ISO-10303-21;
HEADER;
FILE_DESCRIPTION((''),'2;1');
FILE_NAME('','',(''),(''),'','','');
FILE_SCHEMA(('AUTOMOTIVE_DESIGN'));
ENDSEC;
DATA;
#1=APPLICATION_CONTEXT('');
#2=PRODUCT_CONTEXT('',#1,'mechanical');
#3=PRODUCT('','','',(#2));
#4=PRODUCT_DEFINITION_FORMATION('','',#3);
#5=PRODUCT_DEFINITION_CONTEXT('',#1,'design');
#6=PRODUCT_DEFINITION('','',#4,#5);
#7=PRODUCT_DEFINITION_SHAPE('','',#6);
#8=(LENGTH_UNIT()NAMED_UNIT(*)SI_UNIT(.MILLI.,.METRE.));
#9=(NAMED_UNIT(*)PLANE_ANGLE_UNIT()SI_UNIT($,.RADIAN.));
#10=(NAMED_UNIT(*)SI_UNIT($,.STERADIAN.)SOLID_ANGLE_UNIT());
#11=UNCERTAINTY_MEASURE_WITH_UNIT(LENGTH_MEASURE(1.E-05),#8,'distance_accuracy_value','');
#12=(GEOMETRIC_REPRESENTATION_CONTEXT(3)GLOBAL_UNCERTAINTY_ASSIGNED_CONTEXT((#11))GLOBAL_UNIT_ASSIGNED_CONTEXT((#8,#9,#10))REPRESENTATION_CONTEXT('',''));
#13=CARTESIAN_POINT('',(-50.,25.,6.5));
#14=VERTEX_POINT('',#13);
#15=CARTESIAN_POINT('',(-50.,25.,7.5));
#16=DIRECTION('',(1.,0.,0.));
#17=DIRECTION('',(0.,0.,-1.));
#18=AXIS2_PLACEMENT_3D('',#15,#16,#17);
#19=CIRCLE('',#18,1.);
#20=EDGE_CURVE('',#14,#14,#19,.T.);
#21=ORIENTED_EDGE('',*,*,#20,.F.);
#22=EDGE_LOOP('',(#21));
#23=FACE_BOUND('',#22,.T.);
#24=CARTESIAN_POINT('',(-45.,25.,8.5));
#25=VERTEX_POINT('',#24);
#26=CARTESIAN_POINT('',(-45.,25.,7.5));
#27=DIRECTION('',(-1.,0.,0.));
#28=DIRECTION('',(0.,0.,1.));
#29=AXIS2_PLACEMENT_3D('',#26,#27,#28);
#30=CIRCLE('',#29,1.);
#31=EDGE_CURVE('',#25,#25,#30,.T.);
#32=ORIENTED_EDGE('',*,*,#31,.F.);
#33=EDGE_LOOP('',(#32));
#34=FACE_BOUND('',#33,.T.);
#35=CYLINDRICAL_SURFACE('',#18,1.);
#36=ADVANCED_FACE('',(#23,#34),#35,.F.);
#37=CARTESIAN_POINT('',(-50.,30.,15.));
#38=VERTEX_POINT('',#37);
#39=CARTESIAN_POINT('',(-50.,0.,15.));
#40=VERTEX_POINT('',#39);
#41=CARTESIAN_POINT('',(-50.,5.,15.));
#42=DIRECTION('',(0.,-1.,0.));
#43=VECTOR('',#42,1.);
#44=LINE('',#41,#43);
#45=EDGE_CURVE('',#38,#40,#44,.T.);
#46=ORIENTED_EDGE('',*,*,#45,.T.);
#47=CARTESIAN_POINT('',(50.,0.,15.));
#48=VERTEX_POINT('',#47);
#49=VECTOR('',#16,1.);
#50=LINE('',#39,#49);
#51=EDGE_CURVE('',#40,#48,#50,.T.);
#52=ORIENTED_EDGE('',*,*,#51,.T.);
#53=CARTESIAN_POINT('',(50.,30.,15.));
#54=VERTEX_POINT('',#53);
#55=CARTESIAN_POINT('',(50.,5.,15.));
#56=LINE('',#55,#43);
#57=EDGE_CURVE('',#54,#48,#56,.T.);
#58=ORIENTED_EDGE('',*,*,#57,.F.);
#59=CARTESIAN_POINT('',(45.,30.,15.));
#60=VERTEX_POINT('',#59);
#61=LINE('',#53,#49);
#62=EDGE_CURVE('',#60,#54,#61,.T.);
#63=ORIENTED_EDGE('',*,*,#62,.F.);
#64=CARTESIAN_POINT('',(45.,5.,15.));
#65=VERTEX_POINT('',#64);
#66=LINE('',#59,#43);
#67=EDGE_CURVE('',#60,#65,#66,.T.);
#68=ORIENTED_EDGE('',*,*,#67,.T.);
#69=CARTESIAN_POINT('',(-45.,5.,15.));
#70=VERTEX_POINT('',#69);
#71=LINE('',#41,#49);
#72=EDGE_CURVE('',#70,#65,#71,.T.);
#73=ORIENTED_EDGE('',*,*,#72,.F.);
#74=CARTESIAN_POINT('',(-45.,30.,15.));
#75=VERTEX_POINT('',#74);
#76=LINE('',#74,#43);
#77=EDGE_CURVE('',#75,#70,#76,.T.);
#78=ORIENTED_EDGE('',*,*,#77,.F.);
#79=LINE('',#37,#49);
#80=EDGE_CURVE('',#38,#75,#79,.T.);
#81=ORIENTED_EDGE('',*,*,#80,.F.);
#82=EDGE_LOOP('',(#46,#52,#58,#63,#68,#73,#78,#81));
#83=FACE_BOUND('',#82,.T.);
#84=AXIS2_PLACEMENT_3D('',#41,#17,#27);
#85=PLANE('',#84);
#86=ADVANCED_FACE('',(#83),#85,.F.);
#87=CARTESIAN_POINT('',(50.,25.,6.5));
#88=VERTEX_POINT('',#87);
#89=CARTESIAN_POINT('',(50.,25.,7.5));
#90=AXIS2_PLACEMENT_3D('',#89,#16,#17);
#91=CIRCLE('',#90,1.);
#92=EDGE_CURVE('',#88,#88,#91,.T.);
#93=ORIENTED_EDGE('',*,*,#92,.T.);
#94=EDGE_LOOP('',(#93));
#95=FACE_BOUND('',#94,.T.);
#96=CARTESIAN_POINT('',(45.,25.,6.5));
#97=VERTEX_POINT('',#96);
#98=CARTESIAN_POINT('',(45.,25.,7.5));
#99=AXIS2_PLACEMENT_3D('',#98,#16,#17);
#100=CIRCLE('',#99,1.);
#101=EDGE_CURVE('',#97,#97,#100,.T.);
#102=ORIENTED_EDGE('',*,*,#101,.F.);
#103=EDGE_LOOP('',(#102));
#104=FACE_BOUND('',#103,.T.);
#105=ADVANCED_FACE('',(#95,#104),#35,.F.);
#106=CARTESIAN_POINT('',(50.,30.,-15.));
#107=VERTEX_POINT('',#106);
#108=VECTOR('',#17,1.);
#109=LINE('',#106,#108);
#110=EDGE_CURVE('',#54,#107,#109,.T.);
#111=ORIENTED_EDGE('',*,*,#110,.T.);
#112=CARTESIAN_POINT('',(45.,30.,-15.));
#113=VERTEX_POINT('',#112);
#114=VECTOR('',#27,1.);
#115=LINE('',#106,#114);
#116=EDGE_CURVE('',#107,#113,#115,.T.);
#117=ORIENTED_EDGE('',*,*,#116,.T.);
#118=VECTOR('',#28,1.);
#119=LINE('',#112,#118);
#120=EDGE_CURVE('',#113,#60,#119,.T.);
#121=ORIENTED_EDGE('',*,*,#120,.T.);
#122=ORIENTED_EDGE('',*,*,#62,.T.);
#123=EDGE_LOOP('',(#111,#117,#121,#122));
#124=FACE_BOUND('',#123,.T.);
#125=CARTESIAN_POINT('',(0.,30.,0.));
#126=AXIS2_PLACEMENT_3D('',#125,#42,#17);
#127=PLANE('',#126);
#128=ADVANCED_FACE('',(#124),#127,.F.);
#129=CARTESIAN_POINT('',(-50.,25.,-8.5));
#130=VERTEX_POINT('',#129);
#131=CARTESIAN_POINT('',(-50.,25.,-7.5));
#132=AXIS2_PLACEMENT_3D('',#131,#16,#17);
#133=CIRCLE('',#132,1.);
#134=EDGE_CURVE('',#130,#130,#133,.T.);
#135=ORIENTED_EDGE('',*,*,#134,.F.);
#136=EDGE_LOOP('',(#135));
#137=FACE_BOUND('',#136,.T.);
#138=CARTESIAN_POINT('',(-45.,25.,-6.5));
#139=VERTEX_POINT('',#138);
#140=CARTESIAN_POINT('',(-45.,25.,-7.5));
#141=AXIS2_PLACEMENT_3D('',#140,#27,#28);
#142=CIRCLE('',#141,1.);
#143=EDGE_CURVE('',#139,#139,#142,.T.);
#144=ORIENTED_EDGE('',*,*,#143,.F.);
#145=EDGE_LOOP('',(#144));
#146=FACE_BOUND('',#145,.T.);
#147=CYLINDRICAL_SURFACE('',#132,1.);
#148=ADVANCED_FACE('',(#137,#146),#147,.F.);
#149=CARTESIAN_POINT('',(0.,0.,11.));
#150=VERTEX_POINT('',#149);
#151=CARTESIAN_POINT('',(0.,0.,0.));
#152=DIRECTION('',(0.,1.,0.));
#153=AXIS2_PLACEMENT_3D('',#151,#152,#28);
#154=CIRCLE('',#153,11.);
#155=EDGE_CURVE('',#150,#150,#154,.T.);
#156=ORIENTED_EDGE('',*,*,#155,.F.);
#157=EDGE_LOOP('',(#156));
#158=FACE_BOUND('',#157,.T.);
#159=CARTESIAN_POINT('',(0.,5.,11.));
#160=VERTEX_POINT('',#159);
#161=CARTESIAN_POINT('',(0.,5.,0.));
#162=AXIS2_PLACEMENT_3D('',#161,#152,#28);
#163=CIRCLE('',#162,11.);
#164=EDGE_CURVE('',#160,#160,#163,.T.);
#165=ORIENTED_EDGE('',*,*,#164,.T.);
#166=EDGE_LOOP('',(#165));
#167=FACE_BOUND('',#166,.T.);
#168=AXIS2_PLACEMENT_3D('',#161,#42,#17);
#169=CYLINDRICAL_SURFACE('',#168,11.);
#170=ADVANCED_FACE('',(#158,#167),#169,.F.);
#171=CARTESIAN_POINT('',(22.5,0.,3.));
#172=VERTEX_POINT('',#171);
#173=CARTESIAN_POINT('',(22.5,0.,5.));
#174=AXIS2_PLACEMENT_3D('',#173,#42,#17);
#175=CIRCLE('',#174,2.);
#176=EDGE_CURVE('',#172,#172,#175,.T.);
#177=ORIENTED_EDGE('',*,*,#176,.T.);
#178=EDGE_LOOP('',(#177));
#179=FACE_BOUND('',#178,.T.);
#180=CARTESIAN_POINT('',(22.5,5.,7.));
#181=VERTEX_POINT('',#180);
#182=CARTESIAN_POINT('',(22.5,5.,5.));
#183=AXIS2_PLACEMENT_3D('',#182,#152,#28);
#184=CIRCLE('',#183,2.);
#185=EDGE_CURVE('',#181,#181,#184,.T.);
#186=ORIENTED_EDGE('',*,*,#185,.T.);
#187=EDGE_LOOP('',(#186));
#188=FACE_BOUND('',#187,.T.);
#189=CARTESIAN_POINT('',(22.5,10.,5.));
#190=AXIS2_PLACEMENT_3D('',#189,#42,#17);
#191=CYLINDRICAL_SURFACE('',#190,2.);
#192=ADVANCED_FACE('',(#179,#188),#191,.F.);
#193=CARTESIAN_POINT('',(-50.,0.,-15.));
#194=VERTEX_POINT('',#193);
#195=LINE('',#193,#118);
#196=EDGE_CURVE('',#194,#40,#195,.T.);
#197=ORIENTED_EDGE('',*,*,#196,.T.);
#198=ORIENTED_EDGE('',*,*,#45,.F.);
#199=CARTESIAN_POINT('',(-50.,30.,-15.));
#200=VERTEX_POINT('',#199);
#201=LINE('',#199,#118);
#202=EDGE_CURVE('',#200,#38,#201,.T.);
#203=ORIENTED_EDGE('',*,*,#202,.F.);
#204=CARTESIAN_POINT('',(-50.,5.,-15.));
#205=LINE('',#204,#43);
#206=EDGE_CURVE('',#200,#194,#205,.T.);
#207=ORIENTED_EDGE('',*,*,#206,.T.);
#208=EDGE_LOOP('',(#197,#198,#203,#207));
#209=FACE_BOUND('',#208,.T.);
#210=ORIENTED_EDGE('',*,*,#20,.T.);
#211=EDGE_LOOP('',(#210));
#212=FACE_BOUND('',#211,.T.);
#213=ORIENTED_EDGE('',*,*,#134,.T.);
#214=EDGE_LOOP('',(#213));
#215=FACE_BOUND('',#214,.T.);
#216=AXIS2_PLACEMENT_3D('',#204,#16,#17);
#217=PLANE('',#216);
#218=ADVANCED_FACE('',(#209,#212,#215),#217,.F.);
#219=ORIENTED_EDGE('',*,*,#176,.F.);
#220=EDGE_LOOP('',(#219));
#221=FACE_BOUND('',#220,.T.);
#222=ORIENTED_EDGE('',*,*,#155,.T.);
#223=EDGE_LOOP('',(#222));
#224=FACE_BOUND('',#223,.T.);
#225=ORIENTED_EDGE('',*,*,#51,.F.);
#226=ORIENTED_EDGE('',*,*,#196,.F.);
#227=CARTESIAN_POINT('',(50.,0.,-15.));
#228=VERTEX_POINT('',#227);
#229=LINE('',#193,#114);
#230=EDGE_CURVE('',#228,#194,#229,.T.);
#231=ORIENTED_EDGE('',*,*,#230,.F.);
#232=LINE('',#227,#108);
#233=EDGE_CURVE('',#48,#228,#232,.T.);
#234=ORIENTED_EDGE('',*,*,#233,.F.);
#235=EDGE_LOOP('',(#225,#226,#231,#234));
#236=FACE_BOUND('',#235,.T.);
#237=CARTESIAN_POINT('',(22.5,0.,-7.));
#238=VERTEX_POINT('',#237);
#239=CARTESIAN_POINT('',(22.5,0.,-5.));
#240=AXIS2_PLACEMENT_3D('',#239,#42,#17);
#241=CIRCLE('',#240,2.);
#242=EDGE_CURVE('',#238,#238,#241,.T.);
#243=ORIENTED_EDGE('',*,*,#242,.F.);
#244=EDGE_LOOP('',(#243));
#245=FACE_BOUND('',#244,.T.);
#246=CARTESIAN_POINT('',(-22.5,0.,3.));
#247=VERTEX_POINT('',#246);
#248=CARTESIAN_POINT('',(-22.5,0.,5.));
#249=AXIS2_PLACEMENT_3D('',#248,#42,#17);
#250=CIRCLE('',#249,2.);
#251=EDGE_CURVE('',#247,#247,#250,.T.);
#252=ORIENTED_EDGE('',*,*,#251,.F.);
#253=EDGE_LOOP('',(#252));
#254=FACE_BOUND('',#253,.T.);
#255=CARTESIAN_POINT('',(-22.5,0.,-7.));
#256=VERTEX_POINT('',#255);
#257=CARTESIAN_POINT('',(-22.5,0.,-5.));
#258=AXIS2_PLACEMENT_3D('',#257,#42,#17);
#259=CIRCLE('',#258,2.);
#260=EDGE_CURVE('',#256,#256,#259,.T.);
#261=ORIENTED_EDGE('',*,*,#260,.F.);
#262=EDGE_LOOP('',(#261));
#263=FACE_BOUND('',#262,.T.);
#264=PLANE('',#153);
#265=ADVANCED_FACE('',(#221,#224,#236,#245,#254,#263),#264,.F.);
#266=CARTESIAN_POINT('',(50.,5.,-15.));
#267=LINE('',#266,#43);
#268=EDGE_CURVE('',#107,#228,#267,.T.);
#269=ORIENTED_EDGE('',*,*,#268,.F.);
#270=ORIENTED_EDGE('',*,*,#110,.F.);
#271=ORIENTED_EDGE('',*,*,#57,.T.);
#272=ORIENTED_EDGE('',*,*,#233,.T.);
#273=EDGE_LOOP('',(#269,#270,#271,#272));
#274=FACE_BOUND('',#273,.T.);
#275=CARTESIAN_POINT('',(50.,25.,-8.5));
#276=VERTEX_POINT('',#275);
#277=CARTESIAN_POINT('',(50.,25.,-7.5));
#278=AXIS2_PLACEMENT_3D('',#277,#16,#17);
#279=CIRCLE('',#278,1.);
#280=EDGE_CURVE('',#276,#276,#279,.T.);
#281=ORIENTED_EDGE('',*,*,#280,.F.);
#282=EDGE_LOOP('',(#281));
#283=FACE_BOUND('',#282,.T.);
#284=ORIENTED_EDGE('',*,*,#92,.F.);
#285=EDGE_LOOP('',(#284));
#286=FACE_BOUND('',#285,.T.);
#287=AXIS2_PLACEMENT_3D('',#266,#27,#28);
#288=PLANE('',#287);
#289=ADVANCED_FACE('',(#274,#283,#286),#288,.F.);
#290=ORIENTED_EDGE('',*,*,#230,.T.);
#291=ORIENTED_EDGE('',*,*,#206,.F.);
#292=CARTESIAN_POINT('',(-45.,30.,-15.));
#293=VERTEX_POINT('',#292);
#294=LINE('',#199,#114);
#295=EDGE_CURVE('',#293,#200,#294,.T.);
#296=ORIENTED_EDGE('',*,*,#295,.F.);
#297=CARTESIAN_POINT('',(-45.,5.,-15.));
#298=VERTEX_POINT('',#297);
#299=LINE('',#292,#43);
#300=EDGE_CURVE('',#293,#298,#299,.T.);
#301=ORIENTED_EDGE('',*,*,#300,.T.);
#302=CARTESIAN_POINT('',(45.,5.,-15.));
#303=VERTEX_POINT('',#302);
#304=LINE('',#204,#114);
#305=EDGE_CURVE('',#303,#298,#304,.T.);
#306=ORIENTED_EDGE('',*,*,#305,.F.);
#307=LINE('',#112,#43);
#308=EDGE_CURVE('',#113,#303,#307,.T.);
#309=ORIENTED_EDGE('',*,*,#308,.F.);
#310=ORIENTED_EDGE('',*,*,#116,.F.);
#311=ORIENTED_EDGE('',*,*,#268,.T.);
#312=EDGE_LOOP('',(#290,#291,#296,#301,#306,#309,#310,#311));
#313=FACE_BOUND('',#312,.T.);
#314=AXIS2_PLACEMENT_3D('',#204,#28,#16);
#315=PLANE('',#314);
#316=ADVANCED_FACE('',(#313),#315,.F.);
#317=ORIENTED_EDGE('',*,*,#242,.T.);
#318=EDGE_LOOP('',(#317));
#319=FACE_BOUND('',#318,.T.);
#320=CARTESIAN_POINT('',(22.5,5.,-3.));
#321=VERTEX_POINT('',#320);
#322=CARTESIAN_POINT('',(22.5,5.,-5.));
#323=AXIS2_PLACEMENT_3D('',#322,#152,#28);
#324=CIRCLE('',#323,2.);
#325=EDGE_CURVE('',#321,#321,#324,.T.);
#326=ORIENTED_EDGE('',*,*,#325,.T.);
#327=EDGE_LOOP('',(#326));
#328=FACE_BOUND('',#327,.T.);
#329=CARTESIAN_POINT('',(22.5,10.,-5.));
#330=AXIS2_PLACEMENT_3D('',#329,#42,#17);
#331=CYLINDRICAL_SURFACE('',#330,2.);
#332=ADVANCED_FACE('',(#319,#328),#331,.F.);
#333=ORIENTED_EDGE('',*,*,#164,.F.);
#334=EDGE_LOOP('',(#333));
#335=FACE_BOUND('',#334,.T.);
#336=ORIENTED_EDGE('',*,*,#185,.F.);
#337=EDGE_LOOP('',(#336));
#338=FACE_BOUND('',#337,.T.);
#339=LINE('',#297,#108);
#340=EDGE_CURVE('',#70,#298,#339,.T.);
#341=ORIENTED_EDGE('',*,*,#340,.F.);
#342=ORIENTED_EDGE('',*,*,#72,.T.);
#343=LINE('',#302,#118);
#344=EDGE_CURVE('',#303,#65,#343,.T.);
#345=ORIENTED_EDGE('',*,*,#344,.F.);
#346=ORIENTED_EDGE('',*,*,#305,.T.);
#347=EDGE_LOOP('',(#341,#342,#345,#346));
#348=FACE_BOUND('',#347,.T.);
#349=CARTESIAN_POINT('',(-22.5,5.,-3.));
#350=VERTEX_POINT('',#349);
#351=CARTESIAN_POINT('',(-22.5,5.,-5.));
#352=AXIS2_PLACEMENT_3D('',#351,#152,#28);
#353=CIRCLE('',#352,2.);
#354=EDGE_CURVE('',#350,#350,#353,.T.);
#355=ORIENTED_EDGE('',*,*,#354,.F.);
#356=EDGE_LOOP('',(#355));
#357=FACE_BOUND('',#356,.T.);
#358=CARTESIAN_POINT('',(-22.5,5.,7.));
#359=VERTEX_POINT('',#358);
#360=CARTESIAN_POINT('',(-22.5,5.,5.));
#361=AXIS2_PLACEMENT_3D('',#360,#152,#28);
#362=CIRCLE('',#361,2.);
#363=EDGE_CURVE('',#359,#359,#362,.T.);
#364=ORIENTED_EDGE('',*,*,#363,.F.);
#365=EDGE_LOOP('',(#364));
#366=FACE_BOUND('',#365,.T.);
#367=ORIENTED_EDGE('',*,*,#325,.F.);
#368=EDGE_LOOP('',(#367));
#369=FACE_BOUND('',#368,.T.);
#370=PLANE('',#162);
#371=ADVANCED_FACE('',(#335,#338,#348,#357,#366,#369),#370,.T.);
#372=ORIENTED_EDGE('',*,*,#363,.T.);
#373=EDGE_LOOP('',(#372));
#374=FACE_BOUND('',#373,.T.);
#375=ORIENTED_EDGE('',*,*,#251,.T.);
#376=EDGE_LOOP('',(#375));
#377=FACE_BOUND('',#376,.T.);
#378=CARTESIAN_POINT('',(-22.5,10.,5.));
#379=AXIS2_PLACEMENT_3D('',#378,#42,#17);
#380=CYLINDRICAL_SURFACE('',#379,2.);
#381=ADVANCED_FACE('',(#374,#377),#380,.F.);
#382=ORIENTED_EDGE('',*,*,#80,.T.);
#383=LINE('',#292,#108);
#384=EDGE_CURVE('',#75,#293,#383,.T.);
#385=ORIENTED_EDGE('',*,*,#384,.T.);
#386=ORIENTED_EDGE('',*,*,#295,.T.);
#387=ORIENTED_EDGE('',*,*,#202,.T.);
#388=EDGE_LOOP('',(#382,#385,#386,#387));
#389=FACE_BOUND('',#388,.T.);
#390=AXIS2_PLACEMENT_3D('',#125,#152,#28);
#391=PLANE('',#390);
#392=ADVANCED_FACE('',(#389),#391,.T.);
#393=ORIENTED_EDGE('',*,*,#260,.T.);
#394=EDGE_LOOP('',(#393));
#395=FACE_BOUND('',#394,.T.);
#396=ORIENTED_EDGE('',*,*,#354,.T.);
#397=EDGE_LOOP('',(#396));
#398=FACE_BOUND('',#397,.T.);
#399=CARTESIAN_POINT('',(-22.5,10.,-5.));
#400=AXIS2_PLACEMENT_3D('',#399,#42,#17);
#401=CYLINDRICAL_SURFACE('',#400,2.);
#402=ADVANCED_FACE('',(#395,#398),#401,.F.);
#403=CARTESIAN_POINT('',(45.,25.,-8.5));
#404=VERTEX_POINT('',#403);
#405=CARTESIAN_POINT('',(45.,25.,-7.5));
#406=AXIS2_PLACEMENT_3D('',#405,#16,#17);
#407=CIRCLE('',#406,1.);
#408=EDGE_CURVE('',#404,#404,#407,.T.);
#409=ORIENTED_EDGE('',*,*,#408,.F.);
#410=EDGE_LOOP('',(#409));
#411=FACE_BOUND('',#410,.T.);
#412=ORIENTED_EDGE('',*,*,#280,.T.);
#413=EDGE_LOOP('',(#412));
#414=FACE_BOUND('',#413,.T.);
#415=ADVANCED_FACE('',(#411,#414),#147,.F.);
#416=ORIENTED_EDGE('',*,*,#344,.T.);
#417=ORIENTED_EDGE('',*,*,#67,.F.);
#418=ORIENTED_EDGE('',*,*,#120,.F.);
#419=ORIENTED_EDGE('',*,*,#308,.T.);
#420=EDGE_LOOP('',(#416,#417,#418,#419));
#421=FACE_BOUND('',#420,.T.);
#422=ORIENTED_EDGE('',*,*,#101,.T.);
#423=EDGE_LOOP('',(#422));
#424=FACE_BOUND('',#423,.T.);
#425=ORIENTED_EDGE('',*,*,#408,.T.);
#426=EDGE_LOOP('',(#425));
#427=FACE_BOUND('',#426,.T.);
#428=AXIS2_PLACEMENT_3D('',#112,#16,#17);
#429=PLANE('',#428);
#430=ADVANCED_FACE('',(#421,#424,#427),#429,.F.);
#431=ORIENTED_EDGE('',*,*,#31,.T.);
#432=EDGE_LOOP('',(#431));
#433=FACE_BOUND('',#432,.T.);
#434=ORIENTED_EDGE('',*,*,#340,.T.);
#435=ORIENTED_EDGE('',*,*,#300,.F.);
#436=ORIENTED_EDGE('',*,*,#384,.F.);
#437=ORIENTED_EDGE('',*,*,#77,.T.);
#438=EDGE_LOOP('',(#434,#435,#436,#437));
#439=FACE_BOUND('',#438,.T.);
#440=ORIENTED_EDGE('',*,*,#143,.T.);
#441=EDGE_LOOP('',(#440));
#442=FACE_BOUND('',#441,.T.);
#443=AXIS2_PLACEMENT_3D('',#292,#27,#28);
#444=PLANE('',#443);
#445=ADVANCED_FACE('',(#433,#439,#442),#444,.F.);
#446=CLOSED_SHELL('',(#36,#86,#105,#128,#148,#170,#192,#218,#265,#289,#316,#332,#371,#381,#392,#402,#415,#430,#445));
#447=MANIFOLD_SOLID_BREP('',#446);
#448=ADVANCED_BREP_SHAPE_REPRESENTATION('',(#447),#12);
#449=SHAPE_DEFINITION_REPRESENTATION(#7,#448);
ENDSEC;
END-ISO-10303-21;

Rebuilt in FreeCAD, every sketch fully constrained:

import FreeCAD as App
import Part
import Sketcher
from FreeCAD import Vector
Q = App.Units.Quantity


def add_polygon(sketch, points):
    """Adds a closed chain of lines whose ends are joined by coincident constraints."""
    first, n = sketch.GeometryCount, len(points)
    for a, b in zip(points, points[1:] + points[:1]):
        sketch.addGeometry(Part.LineSegment(App.Vector(*a, 0), App.Vector(*b, 0)), False)
    for i in range(n):
        sketch.addConstraint(Sketcher.Constraint("Coincident", first + i, 2, first + (i + 1) % n, 1))

doc = App.newDocument("Part")
body = doc.addObject("PartDesign::Body", "Body")

# Sketch on XZ plane
sketch1 = body.newObject("Sketcher::SketchObject", "Sketch")
sketch1.AttachmentSupport = (doc.getObject("XZ_Plane"), [""])
sketch1.MapMode = "FlatFace"
add_polygon(sketch1, [(-50, -15), (-50, 15), (50, 15), (50, -15)])  # lines 0-3
sketch1.addGeometry(Part.Circle(Vector(0, 0, 0), Vector(0, 0, 1), 11), False)  # 4
sketch1.addConstraint([
    Sketcher.Constraint("Vertical", 0),
    Sketcher.Constraint("Horizontal", 1),
    Sketcher.Constraint("Vertical", 2),
    Sketcher.Constraint("Horizontal", 3),
    Sketcher.Constraint("Coincident", 4, 3, -1, 1),
    Sketcher.Constraint("Symmetric", 0, 2, 2, 2, -1, 1),
    Sketcher.Constraint("Diameter", 4, Q("22 mm")),
    Sketcher.Constraint("DistanceX", 1, 1, 1, 2, Q("100 mm")),
    Sketcher.Constraint("DistanceY", 0, 1, 0, 2, Q("30 mm")),
])
pad1 = body.newObject("PartDesign::Pad", "Pad")
pad1.Profile = sketch1
pad1.Length = 5
pad1.Reversed = True

# Sketch on XZ plane
sketch2 = body.newObject("Sketcher::SketchObject", "Sketch001")
sketch2.AttachmentSupport = (doc.getObject("XZ_Plane"), [""])
sketch2.MapMode = "FlatFace"
sketch2.AttachmentOffset = App.Placement(Vector(0, 0, -5), App.Rotation())
add_polygon(sketch2, [(-50, -15), (-50, 15), (-45, 15), (-45, -15)])  # lines 0-3
add_polygon(sketch2, [(45, -15), (45, 15), (50, 15), (50, -15)])  # lines 4-7
sketch2.addConstraint([
    Sketcher.Constraint("Vertical", 0),
    Sketcher.Constraint("Horizontal", 1),
    Sketcher.Constraint("Vertical", 2),
    Sketcher.Constraint("Horizontal", 3),
    Sketcher.Constraint("Vertical", 4),
    Sketcher.Constraint("Horizontal", 5),
    Sketcher.Constraint("Vertical", 6),
    Sketcher.Constraint("Horizontal", 7),
    Sketcher.Constraint("Symmetric", 2, 2, 4, 2, -1, 1),
    Sketcher.Constraint("Symmetric", 0, 2, 6, 2, -1, 1),
    Sketcher.Constraint("Horizontal", 1, 2, 4, 2),
    Sketcher.Constraint("DistanceX", 1, 1, 1, 2, Q("5 mm")),
    Sketcher.Constraint("DistanceY", 0, 1, 0, 2, Q("30 mm")),
    Sketcher.Constraint("DistanceX", 0, 2, -1, 1, Q("50 mm")),
])
pad2 = body.newObject("PartDesign::Pad", "Pad001")
pad2.Profile = sketch2
pad2.Length = 25
pad2.Reversed = True

# Sketch on YZ plane
sketch3 = body.newObject("Sketcher::SketchObject", "Sketch002")
sketch3.AttachmentSupport = (doc.getObject("YZ_Plane"), [""])
sketch3.MapMode = "FlatFace"
sketch3.AttachmentOffset = App.Placement(Vector(0, 0, 50), App.Rotation())
sketch3.addGeometry([
    Part.Circle(Vector(25, 7.5, 0), Vector(0, 0, 1), 1),
    Part.Circle(Vector(25, -7.5, 0), Vector(0, 0, 1), 1),
], False)
sketch3.addConstraint([
    Sketcher.Constraint("Equal", 0, 1),
    Sketcher.Constraint("Symmetric", 0, 3, 1, 3, -1),
    Sketcher.Constraint("Diameter", 0, Q("2 mm")),
    Sketcher.Constraint("DistanceX", -1, 1, 0, 3, Q("25 mm")),
    Sketcher.Constraint("DistanceY", 1, 3, 0, 3, Q("15 mm")),
])
pocket1 = body.newObject("PartDesign::Pocket", "Pocket")
pocket1.Profile = sketch3
pocket1.Type = "ThroughAll"

# Sketch on XZ plane
sketch4 = body.newObject("Sketcher::SketchObject", "Sketch003")
sketch4.AttachmentSupport = (doc.getObject("XZ_Plane"), [""])
sketch4.MapMode = "FlatFace"
sketch4.addGeometry([
    Part.Circle(Vector(-22.5, -5, 0), Vector(0, 0, 1), 2),
    Part.Circle(Vector(22.5, -5, 0), Vector(0, 0, 1), 2),
    Part.Circle(Vector(-22.5, 5, 0), Vector(0, 0, 1), 2),
    Part.Circle(Vector(22.5, 5, 0), Vector(0, 0, 1), 2),
], False)
sketch4.addConstraint([
    Sketcher.Constraint("Equal", 0, 1),
    Sketcher.Constraint("Equal", 1, 2),
    Sketcher.Constraint("Equal", 2, 3),
    Sketcher.Constraint("Symmetric", 1, 3, 2, 3, -1, 1),
    Sketcher.Constraint("Symmetric", 0, 3, 3, 3, -1, 1),
    Sketcher.Constraint("Symmetric", 0, 3, 1, 3, -2),
    Sketcher.Constraint("Diameter", 0, Q("4 mm")),
    Sketcher.Constraint("DistanceY", 0, 3, -1, 1, Q("5 mm")),
    Sketcher.Constraint("DistanceX", 0, 3, 1, 3, Q("45 mm")),
])
pocket2 = body.newObject("PartDesign::Pocket", "Pocket001")
pocket2.Profile = sketch4
pocket2.Length = 10

doc.recompute()
